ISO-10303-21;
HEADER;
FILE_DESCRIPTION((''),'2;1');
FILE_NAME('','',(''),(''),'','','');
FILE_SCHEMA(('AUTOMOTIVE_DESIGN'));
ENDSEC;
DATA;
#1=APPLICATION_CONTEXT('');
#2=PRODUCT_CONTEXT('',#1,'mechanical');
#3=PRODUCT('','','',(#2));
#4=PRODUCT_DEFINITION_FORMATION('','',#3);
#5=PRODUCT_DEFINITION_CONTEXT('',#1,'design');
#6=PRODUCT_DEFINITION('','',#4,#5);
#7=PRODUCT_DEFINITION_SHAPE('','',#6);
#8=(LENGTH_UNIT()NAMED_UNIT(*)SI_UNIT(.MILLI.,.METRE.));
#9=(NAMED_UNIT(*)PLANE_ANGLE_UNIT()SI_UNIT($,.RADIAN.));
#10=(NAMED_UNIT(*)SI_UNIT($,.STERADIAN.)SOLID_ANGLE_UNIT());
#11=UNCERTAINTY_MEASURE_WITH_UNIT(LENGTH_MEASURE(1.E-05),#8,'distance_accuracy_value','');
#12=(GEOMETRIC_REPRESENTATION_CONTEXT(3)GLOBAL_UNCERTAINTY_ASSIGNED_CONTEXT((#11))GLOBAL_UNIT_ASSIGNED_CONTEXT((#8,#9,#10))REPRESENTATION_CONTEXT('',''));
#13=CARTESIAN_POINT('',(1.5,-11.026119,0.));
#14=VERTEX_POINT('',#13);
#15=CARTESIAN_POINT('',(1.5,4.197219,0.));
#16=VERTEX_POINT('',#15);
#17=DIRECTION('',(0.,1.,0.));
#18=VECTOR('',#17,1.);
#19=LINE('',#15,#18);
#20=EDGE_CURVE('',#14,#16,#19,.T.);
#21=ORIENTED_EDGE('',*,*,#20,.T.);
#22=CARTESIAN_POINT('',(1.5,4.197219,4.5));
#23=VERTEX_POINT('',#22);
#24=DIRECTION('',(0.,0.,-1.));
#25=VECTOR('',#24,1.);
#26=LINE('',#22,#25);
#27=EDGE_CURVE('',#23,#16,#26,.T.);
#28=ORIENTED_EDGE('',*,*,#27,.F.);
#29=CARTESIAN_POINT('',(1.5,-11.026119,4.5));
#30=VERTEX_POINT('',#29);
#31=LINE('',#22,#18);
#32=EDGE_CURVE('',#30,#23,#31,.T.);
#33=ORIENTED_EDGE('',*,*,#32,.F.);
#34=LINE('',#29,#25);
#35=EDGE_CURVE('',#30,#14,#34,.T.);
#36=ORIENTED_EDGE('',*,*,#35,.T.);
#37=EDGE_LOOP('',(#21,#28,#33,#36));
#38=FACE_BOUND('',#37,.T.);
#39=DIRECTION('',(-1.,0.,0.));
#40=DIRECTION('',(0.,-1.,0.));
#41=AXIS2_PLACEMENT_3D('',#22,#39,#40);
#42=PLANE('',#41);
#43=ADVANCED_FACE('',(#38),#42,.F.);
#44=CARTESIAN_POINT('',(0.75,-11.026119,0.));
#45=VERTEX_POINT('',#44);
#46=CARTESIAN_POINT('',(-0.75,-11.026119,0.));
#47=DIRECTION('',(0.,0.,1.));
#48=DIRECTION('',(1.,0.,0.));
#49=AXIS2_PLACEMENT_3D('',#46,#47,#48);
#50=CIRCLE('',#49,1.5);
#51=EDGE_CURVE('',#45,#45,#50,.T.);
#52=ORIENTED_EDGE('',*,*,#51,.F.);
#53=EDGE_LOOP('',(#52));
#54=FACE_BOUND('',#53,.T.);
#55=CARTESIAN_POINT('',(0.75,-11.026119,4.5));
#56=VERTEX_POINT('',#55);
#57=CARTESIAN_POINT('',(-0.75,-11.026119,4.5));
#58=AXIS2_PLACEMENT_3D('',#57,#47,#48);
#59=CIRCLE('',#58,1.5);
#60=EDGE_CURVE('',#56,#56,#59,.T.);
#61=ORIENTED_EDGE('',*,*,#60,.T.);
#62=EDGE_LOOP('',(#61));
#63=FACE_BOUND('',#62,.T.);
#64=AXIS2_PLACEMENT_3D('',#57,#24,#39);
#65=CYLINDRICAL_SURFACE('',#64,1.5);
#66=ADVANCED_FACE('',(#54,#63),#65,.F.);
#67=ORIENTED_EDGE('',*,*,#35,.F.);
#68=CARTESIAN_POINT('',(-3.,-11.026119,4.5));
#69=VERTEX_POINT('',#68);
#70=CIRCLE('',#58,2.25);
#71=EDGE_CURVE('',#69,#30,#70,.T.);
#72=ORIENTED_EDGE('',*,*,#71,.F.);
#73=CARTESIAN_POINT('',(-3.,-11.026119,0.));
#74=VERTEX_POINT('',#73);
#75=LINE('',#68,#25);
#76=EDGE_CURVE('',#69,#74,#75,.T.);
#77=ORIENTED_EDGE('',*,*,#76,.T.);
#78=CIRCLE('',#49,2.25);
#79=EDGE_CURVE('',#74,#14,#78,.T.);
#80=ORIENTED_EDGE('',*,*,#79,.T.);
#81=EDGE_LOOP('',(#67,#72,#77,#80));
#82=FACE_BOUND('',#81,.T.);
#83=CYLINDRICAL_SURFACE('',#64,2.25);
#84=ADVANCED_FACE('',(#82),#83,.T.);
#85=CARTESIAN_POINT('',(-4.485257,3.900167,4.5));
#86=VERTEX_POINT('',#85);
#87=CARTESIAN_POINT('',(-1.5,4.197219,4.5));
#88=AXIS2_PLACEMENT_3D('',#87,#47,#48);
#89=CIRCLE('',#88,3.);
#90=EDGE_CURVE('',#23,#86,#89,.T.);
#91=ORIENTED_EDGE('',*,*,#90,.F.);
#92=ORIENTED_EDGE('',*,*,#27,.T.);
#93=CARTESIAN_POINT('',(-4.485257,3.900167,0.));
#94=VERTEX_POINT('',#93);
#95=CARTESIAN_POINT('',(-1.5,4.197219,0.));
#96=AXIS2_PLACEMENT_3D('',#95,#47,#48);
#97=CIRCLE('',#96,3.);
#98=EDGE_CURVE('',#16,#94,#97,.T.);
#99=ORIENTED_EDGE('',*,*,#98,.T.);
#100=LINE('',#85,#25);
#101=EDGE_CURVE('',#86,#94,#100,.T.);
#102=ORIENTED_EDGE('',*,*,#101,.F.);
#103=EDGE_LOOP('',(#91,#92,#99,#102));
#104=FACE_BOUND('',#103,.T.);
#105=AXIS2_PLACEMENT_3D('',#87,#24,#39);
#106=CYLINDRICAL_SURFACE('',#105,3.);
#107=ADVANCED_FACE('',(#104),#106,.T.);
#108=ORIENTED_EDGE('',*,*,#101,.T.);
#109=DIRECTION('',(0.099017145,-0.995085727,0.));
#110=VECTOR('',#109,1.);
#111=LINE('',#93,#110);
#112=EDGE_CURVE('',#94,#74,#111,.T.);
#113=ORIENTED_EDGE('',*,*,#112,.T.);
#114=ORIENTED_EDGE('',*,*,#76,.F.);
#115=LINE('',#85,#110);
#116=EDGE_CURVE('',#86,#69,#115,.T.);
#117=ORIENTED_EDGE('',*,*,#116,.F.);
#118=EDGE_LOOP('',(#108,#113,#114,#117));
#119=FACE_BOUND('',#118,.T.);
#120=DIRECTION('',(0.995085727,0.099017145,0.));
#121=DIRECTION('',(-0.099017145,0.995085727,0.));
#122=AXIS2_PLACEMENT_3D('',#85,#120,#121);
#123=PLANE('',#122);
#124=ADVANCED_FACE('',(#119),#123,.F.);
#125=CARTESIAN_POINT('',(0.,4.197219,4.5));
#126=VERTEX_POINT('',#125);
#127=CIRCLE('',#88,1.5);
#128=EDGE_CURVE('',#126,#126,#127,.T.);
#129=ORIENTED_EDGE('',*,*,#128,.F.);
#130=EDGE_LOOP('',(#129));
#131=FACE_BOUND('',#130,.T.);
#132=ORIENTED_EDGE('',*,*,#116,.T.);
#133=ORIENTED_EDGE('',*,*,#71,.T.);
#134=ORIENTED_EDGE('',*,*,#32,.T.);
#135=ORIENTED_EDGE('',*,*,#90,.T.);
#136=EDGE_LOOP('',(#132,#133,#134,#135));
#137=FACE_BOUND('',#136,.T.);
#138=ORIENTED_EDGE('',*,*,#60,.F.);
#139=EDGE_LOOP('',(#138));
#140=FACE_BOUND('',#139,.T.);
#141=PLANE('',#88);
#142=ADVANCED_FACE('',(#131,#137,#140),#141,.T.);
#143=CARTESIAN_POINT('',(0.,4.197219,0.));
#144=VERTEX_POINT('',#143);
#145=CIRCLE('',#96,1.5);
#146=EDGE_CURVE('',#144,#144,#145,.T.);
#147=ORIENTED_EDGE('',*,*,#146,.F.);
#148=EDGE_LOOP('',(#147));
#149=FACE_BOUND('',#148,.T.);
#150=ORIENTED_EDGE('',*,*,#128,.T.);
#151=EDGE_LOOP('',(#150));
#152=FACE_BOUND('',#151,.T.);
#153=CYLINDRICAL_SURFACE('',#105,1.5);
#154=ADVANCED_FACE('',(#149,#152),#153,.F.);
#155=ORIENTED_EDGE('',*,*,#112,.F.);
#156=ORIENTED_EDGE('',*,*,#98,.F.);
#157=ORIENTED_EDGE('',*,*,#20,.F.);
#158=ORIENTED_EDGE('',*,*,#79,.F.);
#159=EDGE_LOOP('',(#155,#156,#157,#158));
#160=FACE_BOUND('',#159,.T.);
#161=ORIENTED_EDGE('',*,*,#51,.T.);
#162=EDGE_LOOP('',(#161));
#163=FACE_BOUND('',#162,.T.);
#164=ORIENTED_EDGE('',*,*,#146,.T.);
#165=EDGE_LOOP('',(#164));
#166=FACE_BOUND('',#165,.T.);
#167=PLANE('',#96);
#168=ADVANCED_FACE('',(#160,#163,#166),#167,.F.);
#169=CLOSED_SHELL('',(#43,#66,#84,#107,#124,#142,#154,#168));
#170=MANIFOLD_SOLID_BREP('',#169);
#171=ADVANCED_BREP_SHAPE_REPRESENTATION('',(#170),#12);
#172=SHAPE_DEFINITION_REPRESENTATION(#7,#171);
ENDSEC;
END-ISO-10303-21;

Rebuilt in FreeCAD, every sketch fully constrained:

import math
import FreeCAD as App
import Part
import Sketcher

doc = App.newDocument("Part")
body = doc.addObject("PartDesign::Body", "Body")

# Sketch on XY plane
sketch1 = doc.addObject("Sketcher::SketchObject", "Sketch")
body.addObject(sketch1)
sketch1.AttachmentSupport = (doc.XY_Plane, [""])
sketch1.MapMode = "FlatFace"
sketch1.addGeometry([
    Part.LineSegment(App.Vector(-4.485257, 3.900167, 0), App.Vector(-3, -11.026119, 0)),  # 0
    Part.ArcOfCircle(Part.Circle(App.Vector(-0.75, -11.026119, 0), App.Vector(0, 0, 1), 2.25), math.radians(180), math.radians(360)),  # 1
    Part.LineSegment(App.Vector(1.5, -11.026119, 0), App.Vector(1.5, 4.197219, 0)),  # 2
    Part.ArcOfCircle(Part.Circle(App.Vector(-1.5, 4.197219, 0), App.Vector(0, 0, 1), 3), math.radians(0), math.radians(185.682576)),  # 3
    Part.Circle(App.Vector(-0.75, -11.026119, 0), App.Vector(0, 0, 1), 1.5),  # 4
    Part.Circle(App.Vector(-1.5, 4.197219, 0), App.Vector(0, 0, 1), 1.5),  # 5
], False)
sketch1.addConstraint([
    Sketcher.Constraint("Coincident", 0, 2, 1, 1),
    Sketcher.Constraint("Tangent", 1, 2, 2, 1),
    Sketcher.Constraint("Tangent", 2, 2, 3, 1),
    Sketcher.Constraint("Tangent", 3, 2, 0, 1),
    Sketcher.Constraint("Vertical", 2),
    Sketcher.Constraint("Coincident", 4, 3, 1, 3),
    Sketcher.Constraint("Coincident", 5, 3, 3, 3),
    Sketcher.Constraint("Equal", 4, 5),
    Sketcher.Constraint("Horizontal", 4, 3, 0, 2),
    Sketcher.Constraint("Diameter", 4, 3.0),
    Sketcher.Constraint("Radius", 3, 3.0),
    Sketcher.Constraint("Radius", 1, 2.25),
    Sketcher.Constraint("Distance", 0, 15.0),
    Sketcher.Constraint("DistanceX", 0, 2, -1, 1, 3.0),
    Sketcher.Constraint("DistanceY", 1, 3, -1, 1, 11.026119),
])
pad1 = doc.addObject("PartDesign::Pad", "Pad")
body.addObject(pad1)
pad1.Profile = sketch1
pad1.Length = 4.5

doc.recompute()
